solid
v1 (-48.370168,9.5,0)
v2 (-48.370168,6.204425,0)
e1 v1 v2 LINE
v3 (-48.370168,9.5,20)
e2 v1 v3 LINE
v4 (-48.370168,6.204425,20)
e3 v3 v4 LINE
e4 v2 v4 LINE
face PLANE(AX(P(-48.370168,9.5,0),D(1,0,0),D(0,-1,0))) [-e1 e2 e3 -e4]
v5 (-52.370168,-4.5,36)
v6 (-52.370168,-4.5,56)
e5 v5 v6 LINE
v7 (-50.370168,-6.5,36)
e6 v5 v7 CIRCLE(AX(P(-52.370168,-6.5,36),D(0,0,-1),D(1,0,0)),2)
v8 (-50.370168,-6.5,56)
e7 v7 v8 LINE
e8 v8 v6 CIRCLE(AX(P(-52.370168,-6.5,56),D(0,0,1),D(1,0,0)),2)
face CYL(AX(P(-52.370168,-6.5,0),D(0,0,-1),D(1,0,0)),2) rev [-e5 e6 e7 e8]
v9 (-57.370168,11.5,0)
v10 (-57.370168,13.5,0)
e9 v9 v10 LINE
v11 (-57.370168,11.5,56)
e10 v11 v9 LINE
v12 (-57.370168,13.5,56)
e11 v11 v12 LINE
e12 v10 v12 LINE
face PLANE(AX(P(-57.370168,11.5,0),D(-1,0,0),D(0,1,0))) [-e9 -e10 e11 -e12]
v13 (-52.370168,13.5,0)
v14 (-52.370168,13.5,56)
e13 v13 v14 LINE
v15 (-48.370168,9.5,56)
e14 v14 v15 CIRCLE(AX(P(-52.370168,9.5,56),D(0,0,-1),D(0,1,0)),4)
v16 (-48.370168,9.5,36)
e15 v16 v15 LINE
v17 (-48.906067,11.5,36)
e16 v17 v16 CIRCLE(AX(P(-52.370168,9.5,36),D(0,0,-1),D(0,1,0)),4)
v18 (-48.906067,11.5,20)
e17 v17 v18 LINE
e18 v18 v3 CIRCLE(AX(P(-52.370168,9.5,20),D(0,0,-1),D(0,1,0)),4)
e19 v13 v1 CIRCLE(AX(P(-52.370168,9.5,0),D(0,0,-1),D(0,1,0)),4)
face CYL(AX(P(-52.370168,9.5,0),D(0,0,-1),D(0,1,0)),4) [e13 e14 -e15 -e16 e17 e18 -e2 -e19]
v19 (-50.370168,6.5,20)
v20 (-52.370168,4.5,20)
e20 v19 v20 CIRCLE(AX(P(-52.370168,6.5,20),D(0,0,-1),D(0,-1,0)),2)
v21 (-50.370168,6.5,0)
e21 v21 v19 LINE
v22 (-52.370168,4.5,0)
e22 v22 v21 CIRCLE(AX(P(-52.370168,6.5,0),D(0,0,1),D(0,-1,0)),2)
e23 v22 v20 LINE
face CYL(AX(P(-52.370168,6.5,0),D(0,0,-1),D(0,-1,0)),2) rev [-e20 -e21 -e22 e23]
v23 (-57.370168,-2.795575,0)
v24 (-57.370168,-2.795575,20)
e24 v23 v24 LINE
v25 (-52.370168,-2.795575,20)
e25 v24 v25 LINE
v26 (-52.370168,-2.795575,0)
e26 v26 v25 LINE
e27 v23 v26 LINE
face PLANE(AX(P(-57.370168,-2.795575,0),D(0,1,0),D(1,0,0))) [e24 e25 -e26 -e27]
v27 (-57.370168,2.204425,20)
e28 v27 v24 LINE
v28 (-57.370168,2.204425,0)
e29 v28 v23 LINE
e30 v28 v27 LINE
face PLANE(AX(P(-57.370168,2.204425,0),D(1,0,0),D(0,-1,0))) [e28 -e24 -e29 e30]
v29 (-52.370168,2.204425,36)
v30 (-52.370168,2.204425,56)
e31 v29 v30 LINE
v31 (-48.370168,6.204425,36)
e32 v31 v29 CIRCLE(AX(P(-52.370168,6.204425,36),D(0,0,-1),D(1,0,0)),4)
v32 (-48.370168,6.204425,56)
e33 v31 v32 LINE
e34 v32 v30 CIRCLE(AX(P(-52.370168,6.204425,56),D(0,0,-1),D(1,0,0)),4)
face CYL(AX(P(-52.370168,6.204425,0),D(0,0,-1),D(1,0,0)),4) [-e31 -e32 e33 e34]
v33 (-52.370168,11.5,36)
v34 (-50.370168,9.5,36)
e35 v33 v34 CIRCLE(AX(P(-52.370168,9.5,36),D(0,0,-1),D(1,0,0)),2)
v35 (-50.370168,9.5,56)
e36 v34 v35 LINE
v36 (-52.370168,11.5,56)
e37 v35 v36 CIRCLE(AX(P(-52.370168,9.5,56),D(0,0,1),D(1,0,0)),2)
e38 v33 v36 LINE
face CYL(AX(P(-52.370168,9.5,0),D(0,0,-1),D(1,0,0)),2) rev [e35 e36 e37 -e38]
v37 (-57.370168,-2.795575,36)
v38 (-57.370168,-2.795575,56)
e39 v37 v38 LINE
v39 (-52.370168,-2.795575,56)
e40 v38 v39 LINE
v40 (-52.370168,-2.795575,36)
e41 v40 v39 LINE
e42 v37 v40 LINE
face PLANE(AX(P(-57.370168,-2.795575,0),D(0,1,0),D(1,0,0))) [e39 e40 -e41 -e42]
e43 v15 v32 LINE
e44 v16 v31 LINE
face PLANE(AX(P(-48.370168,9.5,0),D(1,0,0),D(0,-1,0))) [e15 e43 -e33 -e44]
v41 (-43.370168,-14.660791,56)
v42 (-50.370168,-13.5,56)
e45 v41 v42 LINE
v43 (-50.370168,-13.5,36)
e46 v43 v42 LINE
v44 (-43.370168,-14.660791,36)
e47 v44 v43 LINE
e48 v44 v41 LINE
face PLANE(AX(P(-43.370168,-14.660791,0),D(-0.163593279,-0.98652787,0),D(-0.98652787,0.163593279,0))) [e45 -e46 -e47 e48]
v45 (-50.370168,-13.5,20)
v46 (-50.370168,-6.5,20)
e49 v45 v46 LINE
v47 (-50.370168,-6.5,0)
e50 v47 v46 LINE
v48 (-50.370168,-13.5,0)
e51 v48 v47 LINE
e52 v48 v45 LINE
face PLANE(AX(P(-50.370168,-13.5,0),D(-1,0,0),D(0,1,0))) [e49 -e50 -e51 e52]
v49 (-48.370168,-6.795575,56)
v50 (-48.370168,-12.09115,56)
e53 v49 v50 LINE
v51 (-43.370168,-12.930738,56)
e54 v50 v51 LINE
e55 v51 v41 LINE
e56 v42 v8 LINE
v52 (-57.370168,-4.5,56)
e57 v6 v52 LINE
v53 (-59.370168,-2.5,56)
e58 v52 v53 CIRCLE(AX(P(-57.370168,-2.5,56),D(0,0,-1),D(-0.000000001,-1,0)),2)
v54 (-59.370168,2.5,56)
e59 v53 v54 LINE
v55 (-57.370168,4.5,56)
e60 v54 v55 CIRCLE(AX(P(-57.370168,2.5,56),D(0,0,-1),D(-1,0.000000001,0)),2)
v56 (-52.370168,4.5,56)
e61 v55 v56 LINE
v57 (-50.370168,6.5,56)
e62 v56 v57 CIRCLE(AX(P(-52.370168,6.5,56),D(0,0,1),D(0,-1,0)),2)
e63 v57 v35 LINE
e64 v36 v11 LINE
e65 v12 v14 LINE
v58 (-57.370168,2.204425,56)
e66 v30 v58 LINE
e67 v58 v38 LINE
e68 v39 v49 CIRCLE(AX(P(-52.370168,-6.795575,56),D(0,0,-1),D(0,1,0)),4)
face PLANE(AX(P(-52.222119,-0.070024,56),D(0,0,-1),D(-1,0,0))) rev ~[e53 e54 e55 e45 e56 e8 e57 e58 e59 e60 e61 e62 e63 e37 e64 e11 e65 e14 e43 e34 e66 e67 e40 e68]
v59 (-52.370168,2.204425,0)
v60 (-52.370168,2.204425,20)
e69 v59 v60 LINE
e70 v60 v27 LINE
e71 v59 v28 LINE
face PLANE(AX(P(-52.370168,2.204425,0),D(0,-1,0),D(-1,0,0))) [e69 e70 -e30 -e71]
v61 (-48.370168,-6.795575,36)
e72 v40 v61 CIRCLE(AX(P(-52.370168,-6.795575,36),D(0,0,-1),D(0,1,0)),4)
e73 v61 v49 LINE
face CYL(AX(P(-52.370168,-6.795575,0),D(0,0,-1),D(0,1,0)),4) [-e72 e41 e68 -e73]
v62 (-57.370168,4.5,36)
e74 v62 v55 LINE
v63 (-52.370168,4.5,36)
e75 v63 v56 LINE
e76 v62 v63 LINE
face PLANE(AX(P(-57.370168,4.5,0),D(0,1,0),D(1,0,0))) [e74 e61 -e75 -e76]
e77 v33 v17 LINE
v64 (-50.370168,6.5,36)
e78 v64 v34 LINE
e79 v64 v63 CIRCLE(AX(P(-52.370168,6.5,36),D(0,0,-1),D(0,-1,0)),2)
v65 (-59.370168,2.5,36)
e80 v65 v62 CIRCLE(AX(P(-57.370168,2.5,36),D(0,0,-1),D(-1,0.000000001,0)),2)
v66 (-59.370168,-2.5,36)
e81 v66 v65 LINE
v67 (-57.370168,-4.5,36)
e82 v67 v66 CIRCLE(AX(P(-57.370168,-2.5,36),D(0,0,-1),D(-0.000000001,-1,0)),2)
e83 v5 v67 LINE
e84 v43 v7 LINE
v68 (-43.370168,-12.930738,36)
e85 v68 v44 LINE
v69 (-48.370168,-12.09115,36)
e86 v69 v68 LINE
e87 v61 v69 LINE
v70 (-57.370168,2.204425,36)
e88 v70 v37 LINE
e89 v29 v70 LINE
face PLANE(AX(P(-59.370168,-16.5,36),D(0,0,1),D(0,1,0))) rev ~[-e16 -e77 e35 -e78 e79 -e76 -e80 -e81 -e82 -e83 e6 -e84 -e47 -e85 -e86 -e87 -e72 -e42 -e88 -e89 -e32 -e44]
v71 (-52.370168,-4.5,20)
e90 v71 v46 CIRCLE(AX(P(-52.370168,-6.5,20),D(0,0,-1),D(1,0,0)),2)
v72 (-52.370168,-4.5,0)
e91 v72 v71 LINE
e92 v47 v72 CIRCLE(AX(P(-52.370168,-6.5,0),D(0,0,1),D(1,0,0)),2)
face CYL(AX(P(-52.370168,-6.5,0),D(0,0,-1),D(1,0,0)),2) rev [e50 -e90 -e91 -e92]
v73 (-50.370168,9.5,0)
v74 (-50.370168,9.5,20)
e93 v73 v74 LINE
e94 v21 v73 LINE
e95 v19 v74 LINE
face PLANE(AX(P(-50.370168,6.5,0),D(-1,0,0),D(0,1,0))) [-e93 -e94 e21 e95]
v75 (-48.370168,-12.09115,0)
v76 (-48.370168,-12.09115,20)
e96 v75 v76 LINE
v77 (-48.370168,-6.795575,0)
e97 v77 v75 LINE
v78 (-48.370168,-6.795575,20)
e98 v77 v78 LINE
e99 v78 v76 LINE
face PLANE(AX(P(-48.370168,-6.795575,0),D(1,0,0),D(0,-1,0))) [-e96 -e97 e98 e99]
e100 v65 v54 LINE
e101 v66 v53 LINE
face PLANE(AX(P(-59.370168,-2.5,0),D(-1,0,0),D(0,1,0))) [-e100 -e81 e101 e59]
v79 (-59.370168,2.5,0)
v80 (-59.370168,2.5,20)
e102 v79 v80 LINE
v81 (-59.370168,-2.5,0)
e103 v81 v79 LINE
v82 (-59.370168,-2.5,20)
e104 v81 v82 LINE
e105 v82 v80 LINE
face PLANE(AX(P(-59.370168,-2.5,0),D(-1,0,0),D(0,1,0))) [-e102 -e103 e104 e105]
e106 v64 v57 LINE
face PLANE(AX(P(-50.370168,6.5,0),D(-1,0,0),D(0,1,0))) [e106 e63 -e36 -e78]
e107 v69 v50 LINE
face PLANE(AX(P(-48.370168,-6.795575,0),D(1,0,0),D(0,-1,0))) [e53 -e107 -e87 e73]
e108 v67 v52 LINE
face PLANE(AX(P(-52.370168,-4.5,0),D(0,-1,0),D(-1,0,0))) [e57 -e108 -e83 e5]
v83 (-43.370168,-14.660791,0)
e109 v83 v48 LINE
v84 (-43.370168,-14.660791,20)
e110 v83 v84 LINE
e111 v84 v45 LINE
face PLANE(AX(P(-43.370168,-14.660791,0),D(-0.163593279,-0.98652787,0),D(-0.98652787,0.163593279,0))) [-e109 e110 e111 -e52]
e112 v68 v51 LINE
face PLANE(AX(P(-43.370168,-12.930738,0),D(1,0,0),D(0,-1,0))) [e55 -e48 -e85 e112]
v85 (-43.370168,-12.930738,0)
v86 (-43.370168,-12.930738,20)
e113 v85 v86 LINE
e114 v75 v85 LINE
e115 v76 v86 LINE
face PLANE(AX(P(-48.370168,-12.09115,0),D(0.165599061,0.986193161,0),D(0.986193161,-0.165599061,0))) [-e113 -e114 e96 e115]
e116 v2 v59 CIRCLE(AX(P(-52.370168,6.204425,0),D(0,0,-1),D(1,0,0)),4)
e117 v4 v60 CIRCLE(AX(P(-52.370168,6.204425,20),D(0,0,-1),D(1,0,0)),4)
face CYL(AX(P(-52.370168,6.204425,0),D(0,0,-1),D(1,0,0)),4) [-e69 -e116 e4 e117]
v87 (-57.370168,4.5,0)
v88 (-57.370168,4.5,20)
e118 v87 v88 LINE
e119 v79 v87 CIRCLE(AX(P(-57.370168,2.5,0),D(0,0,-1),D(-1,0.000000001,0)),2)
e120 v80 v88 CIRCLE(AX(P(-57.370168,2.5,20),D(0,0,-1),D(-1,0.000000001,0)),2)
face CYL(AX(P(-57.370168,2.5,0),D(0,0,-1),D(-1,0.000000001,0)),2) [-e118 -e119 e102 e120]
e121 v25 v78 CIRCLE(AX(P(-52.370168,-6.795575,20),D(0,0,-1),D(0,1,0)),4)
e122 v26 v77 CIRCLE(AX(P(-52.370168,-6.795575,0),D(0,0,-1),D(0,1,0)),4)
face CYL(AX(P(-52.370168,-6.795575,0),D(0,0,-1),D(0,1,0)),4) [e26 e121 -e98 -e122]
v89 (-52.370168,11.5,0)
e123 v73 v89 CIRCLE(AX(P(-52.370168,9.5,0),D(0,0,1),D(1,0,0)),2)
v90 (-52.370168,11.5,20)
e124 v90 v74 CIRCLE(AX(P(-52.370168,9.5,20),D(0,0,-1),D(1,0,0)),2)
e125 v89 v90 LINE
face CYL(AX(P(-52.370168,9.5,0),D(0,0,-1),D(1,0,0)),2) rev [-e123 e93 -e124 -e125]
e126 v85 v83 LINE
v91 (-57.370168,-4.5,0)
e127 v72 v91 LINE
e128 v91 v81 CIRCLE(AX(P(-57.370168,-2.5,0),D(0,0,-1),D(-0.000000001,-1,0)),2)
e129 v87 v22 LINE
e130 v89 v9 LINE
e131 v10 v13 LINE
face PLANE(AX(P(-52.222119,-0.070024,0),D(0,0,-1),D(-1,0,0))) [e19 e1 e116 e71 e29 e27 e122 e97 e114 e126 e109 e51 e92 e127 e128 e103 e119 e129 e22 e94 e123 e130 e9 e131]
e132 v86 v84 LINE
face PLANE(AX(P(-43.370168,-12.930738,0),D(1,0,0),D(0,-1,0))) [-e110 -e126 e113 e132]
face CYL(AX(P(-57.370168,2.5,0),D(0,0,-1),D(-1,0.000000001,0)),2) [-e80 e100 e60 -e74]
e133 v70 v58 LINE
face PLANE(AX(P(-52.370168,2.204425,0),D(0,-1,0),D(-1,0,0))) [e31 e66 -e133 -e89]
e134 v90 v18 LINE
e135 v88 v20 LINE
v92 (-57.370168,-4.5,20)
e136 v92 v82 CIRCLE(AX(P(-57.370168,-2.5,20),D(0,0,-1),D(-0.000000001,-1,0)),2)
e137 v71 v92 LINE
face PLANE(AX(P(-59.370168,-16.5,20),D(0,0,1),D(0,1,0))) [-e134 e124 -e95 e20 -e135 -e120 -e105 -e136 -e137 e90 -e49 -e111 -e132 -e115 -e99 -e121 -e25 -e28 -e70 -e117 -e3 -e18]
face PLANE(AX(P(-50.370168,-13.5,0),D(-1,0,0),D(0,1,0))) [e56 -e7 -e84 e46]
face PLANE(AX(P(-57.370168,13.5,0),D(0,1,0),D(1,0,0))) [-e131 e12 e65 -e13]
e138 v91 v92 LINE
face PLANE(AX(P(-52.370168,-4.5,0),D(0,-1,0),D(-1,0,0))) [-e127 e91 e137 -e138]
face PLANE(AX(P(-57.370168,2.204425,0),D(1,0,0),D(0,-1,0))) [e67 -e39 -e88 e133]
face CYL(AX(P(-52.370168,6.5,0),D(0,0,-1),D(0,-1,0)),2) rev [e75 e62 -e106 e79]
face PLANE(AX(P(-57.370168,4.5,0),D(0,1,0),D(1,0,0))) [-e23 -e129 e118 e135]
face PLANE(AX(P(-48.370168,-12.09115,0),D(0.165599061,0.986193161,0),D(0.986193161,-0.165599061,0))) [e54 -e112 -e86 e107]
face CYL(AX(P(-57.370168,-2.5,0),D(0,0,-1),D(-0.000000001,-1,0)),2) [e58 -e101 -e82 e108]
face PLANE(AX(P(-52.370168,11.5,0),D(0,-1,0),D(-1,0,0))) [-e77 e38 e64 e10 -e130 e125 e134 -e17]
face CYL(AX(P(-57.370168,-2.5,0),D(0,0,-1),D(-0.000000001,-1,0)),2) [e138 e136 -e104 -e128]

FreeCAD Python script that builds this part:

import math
import FreeCAD as App
import Part
import Sketcher

V = App.Vector
Q = App.Units.Quantity

doc = App.newDocument("Part")
body = doc.addObject("PartDesign::Body", "Body")

sketch1 = body.newObject("Sketcher::SketchObject", "Sketch")
sketch1.AttachmentSupport = (doc.getObject("XY_Plane"), [""])
sketch1.MapMode = "FlatFace"
sketch1.addGeometry([
    Part.ArcOfCircle(Part.Circle(V(-52.370168, 6.5, 0), V(0, 0, 1), 2), math.radians(-90), math.radians(0)),
    Part.LineSegment(V(-52.370168, 4.5, 0), V(-57.370168, 4.5, 0)),
    Part.ArcOfCircle(Part.Circle(V(-57.370168, 2.5, 0), V(0, 0, 1), 2), math.radians(90), math.radians(180)),
    Part.LineSegment(V(-59.370168, 2.5, 0), V(-59.370168, -2.5, 0)),
    Part.ArcOfCircle(Part.Circle(V(-57.370168, -2.5, 0), V(0, 0, 1), 2), math.radians(-180), math.radians(-90)),
    Part.LineSegment(V(-57.370168, -4.5, 0), V(-52.370168, -4.5, 0)),
    Part.ArcOfCircle(Part.Circle(V(-52.370168, -6.5, 0), V(0, 0, 1), 2), math.radians(0), math.radians(90)),
    Part.LineSegment(V(-50.370168, -6.5, 0), V(-50.370168, -13.5, 0)),
    Part.LineSegment(V(-50.370168, -13.5, 0), V(-43.370168, -14.660791, 0)),
    Part.LineSegment(V(-43.370168, -14.660791, 0), V(-43.370168, -12.930738, 0)),
    Part.LineSegment(V(-43.370168, -12.930738, 0), V(-48.370168, -12.09115, 0)),
    Part.LineSegment(V(-48.370168, -12.09115, 0), V(-48.370168, -6.795575, 0)),
    Part.ArcOfCircle(Part.Circle(V(-52.370168, -6.795575, 0), V(0, 0, 1), 4), math.radians(0), math.radians(90)),
    Part.LineSegment(V(-52.370168, -2.795575, 0), V(-57.370168, -2.795575, 0)),
    Part.LineSegment(V(-57.370168, -2.795575, 0), V(-57.370168, 2.204425, 0)),
    Part.LineSegment(V(-57.370168, 2.204425, 0), V(-52.370168, 2.204425, 0)),
    Part.ArcOfCircle(Part.Circle(V(-52.370168, 6.204425, 0), V(0, 0, 1), 4), math.radians(-90), math.radians(0)),
    Part.LineSegment(V(-48.370168, 6.204425, 0), V(-48.370168, 9.5, 0)),
    Part.ArcOfCircle(Part.Circle(V(-52.370168, 9.5, 0), V(0, 0, 1), 4), math.radians(0), math.radians(90)),
    Part.LineSegment(V(-52.370168, 13.5, 0), V(-57.370168, 13.5, 0)),
    Part.LineSegment(V(-57.370168, 13.5, 0), V(-57.370168, 11.5, 0)),
    Part.LineSegment(V(-57.370168, 11.5, 0), V(-52.370168, 11.5, 0)),
    Part.ArcOfCircle(Part.Circle(V(-52.370168, 9.5, 0), V(0, 0, 1), 2), math.radians(0), math.radians(90)),
    Part.LineSegment(V(-50.370168, 9.5, 0), V(-50.370168, 6.5, 0)),
], False)
sketch1.addConstraint([
    Sketcher.Constraint("Tangent", 0, 1, 1, 1),
    Sketcher.Constraint("Tangent", 1, 2, 2, 1),
    Sketcher.Constraint("Tangent", 2, 2, 3, 1),
    Sketcher.Constraint("Tangent", 3, 2, 4, 1),
    Sketcher.Constraint("Tangent", 4, 2, 5, 1),
    Sketcher.Constraint("Tangent", 5, 2, 6, 2),
    Sketcher.Constraint("Tangent", 6, 1, 7, 1),
    Sketcher.Constraint("Coincident", 7, 2, 8, 1),
    Sketcher.Constraint("Coincident", 8, 2, 9, 1),
    Sketcher.Constraint("Coincident", 9, 2, 10, 1),
    Sketcher.Constraint("Coincident", 10, 2, 11, 1),
    Sketcher.Constraint("Tangent", 11, 2, 12, 1),
    Sketcher.Constraint("Tangent", 12, 2, 13, 1),
    Sketcher.Constraint("Coincident", 13, 2, 14, 1),
    Sketcher.Constraint("Coincident", 14, 2, 15, 1),
    Sketcher.Constraint("Tangent", 15, 2, 16, 1),
    Sketcher.Constraint("Tangent", 16, 2, 17, 1),
    Sketcher.Constraint("Tangent", 17, 2, 18, 1),
    Sketcher.Constraint("Tangent", 18, 2, 19, 1),
    Sketcher.Constraint("Coincident", 19, 2, 20, 1),
    Sketcher.Constraint("Coincident", 20, 2, 21, 1),
    Sketcher.Constraint("Tangent", 21, 2, 22, 2),
    Sketcher.Constraint("Tangent", 22, 1, 23, 1),
    Sketcher.Constraint("Tangent", 23, 2, 0, 2),
    Sketcher.Constraint("Horizontal", 1),
    Sketcher.Constraint("Vertical", 3),
    Sketcher.Constraint("Horizontal", 5),
    Sketcher.Constraint("Vertical", 7),
    Sketcher.Constraint("Vertical", 9),
    Sketcher.Constraint("Vertical", 11),
    Sketcher.Constraint("Horizontal", 13),
    Sketcher.Constraint("Vertical", 14),
    Sketcher.Constraint("Horizontal", 15),
    Sketcher.Constraint("Vertical", 17),
    Sketcher.Constraint("Horizontal", 19),
    Sketcher.Constraint("Vertical", 20),
    Sketcher.Constraint("Horizontal", 21),
    Sketcher.Constraint("Vertical", 23),
    Sketcher.Constraint("Coincident", 22, 3, 18, 3),
    Sketcher.Constraint("Equal", 0, 2),
    Sketcher.Constraint("Equal", 2, 4),
    Sketcher.Constraint("Equal", 4, 6),
    Sketcher.Constraint("Equal", 12, 16),
    Sketcher.Constraint("Equal", 16, 18),
    Sketcher.Constraint("Equal", 6, 22),
    Sketcher.Constraint("Symmetric", 0, 3, 6, 3, -1),
    Sketcher.Constraint("Vertical", 6, 3, 12, 3),
    Sketcher.Constraint("Vertical", 4, 2, 13, 2),
    Sketcher.Constraint("Vertical", 14, 2, 19, 2),
    Sketcher.Constraint("Equal", 21, 3),
    Sketcher.Constraint("Equal", 3, 14),
    Sketcher.Constraint("Radius", 0, Q("2 mm")),
    Sketcher.Constraint("Radius", 12, Q("4 mm")),
    Sketcher.Constraint("DistanceX", 1, 2, 1, 1, Q("5 mm")),
    Sketcher.Constraint("DistanceY", 7, 2, 7, 1, Q("7 mm")),
    Sketcher.Constraint("DistanceY", 23, 2, 23, 1, Q("3 mm")),
    Sketcher.Constraint("DistanceX", 7, 2, 8, 2, Q("7 mm")),
    Sketcher.Constraint("Distance", 10, Q("5.070001 mm")),
    Sketcher.Constraint("DistanceY", 9, 1, 9, 2, Q("1.730054 mm")),
    Sketcher.Constraint("DistanceY", 11, 1, 11, 2, Q("5.295575 mm")),
    Sketcher.Constraint("DistanceY", 17, 1, 17, 2, Q("3.295575 mm")),
    Sketcher.Constraint("DistanceX", 0, 3, -1, 1, Q("52.370168 mm")),
])
pad1 = body.newObject("PartDesign::Pad", "Pad")
pad1.Profile = sketch1
pad1.Length = 56

sketch2 = body.newObject("Sketcher::SketchObject", "Sketch001")
sketch2.AttachmentSupport = (doc.getObject("YZ_Plane"), [""])
sketch2.MapMode = "FlatFace"
sketch2.AttachmentOffset = App.Placement(V(0, 0, -59.370168), App.Rotation())
sketch2.addGeometry([
    Part.LineSegment(V(11.5, 20, 0), V(-16.5, 20, 0)),
    Part.LineSegment(V(-16.5, 20, 0), V(-16.5, 36, 0)),
    Part.LineSegment(V(-16.5, 36, 0), V(11.5, 36, 0)),
    Part.LineSegment(V(11.5, 36, 0), V(11.5, 20, 0)),
], False)
sketch2.addConstraint([
    Sketcher.Constraint("Coincident", 0, 2, 1, 1),
    Sketcher.Constraint("Coincident", 1, 2, 2, 1),
    Sketcher.Constraint("Coincident", 2, 2, 3, 1),
    Sketcher.Constraint("Coincident", 3, 2, 0, 1),
    Sketcher.Constraint("Horizontal", 0),
    Sketcher.Constraint("Vertical", 1),
    Sketcher.Constraint("Horizontal", 2),
    Sketcher.Constraint("Vertical", 3),
    Sketcher.Constraint("DistanceX", 0, 2, 0, 1, Q("28 mm")),
    Sketcher.Constraint("DistanceY", 1, 1, 1, 2, Q("16 mm")),
    Sketcher.Constraint("DistanceY", -1, 1, 0, 2, Q("20 mm")),
    Sketcher.Constraint("DistanceX", 0, 2, -1, 1, Q("16.5 mm")),
])
pocket1 = body.newObject("PartDesign::Pocket", "Pocket")
pocket1.Profile = sketch2
pocket1.Type = "ThroughAll"
pocket1.Reversed = True

doc.recompute()
